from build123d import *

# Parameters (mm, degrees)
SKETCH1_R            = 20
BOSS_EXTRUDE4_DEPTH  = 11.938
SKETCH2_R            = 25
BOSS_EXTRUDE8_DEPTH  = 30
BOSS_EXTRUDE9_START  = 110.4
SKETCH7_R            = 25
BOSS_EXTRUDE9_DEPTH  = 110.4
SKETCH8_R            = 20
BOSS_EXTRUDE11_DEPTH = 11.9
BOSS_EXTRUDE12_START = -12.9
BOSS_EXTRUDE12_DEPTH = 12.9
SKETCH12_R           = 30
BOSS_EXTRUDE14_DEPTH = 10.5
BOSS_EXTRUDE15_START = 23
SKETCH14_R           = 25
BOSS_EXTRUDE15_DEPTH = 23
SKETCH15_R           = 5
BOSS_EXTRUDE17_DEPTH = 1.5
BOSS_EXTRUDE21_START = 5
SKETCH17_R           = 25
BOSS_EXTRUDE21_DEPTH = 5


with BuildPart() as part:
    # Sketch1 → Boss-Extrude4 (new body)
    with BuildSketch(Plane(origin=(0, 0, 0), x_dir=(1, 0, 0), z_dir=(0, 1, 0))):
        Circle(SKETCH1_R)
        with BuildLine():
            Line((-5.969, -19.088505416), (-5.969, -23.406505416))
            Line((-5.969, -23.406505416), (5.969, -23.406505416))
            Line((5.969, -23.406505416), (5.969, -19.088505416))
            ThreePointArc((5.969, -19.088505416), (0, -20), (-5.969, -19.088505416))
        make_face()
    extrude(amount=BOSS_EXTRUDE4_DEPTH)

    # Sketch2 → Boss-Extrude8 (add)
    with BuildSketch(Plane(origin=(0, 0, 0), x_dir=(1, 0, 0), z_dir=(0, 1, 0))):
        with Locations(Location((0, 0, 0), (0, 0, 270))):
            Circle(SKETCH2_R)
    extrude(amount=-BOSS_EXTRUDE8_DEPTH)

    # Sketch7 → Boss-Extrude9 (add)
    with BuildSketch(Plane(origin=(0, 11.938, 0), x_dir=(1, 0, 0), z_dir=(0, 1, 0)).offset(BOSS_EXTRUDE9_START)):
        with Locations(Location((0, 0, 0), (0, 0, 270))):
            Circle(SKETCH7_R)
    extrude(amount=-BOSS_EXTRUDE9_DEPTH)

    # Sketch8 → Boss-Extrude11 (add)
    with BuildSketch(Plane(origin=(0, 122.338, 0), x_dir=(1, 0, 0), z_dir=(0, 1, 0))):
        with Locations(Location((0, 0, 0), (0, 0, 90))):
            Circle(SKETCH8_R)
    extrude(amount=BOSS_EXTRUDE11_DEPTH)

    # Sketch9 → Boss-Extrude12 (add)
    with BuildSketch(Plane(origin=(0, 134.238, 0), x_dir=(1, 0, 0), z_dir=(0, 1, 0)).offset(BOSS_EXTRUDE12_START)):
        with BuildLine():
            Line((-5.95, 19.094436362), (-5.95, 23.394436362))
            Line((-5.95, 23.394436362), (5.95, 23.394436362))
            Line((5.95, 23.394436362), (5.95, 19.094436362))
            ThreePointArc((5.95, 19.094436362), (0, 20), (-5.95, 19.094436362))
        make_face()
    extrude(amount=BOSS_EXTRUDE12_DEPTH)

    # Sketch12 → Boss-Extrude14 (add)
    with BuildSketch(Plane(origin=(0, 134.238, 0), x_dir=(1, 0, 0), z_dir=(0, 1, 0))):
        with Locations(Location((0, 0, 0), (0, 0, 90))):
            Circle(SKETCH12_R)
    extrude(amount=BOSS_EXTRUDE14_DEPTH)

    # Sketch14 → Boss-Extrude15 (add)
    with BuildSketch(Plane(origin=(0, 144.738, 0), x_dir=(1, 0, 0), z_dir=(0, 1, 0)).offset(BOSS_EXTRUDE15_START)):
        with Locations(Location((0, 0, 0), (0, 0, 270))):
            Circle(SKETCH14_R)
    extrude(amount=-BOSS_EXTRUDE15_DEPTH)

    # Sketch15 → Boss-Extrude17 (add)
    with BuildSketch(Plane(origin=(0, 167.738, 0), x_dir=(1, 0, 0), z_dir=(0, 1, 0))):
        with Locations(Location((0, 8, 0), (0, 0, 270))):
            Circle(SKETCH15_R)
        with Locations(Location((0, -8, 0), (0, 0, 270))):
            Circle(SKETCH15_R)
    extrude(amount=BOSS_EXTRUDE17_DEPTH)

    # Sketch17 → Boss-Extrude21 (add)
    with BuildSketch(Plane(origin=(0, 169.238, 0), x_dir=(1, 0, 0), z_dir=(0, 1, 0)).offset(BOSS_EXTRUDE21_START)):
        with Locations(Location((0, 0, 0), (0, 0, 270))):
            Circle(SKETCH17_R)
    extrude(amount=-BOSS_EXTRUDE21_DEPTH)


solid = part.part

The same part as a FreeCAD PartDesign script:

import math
import FreeCAD as App
import Part
import Sketcher

doc = App.newDocument("Part")
params = doc.addObject("Spreadsheet::Sheet", "Params")
for row, (alias, value) in enumerate([
    ("sketch1_radius", "20 mm"),
    ("pad1_length", "11.938 mm"),
    ("sketch2_diameter", "50 mm"),
    ("pad2_length", "30 mm"),
    ("sketch3_diameter", "50 mm"),
    ("pad3_length", "110.4 mm"),
    ("sketch4_diameter", "40 mm"),
    ("pad4_length", "11.9 mm"),
    ("sketch5_radius", "20 mm"),
    ("sketch5_width", "11.9 mm"),
    ("sketch5_height", "4.3 mm"),
    ("pad5_length", "12.9 mm"),
    ("sketch6_diameter", "60 mm"),
    ("pad6_length", "10.5 mm"),
    ("sketch7_diameter", "50 mm"),
    ("pad7_length", "23 mm"),
    ("sketch8_diameter", "10 mm"),
    ("pad8_length", "1.5 mm"),
    ("sketch9_diameter", "50 mm"),
    ("pad9_length", "5 mm"),
], start=1):
    params.set(f"A{row}", alias)
    params.set(f"B{row}", "=" + value)
    params.setAlias(f"B{row}", alias)

body = doc.addObject("PartDesign::Body", "Body")

# Sketch on XZ plane
sketch1 = doc.addObject("Sketcher::SketchObject", "Sketch")
body.addObject(sketch1)
sketch1.AttachmentSupport = (doc.XZ_Plane, [""])
sketch1.MapMode = "FlatFace"
sketch1.addGeometry([
    Part.LineSegment(App.Vector(-6, 19.1, 0), App.Vector(-6, 23.4, 0)),
    Part.LineSegment(App.Vector(-6, 23.4, 0), App.Vector(6, 23.4, 0)),
    Part.LineSegment(App.Vector(6, 23.4, 0), App.Vector(6, 19.1, 0)),
    Part.ArcOfCircle(Part.Circle(App.Vector(0, 0, 0), App.Vector(0, 0, 1), 20), math.radians(107), math.radians(433)),
], False)
sketch1.addConstraint([
    Sketcher.Constraint("Coincident", 0, 2, 1, 1),
    Sketcher.Constraint("Coincident", 1, 2, 2, 1),
    Sketcher.Constraint("Coincident", 2, 2, 3, 2),
    Sketcher.Constraint("Coincident", 3, 1, 0, 1),
    Sketcher.Constraint("Vertical", 0),
    Sketcher.Constraint("Horizontal", 1),
    Sketcher.Constraint("Vertical", 2),
    Sketcher.Constraint("Coincident", 3, 3, -1, 1),
    Sketcher.Constraint("Horizontal", 2, 2, 3, 1),
    Sketcher.Constraint("Radius", 3, 20.0),
    Sketcher.Constraint("DistanceX", 1, 1, 1, 2, 11.938),
    Sketcher.Constraint("DistanceY", 0, 1, 0, 2, 4.318),
])
sketch1.setExpression("Constraints[9]", "Params.sketch1_radius")
pad1 = doc.addObject("PartDesign::Pad", "Pad")
body.addObject(pad1)
pad1.Profile = sketch1
pad1.setExpression("Length", "Params.pad1_length")
pad1.Reversed = True

# Sketch on XZ plane
sketch2 = doc.addObject("Sketcher::SketchObject", "Sketch001")
body.addObject(sketch2)
sketch2.AttachmentSupport = (doc.XZ_Plane, [""])
sketch2.MapMode = "FlatFace"
sketch2.addGeometry(Part.Circle(App.Vector(0, 0, 0), App.Vector(0, 0, 1), 25), False)
sketch2.addConstraint([
    Sketcher.Constraint("Coincident", 0, 3, -1, 1),
    Sketcher.Constraint("Diameter", 0, 50.0),
])
sketch2.setExpression("Constraints[1]", "Params.sketch2_diameter")
pad2 = doc.addObject("PartDesign::Pad", "Pad001")
body.addObject(pad2)
pad2.Profile = sketch2
pad2.setExpression("Length", "Params.pad2_length")

# Sketch on XZ plane
sketch3 = doc.addObject("Sketcher::SketchObject", "Sketch002")
body.addObject(sketch3)
sketch3.AttachmentSupport = (doc.XZ_Plane, [""])
sketch3.MapMode = "FlatFace"
sketch3.AttachmentOffset = App.Placement(App.Vector(0, 0, -122.338), App.Rotation())
sketch3.addGeometry(Part.Circle(App.Vector(0, 0, 0), App.Vector(0, 0, 1), 25), False)
sketch3.addConstraint([
    Sketcher.Constraint("Coincident", 0, 3, -1, 1),
    Sketcher.Constraint("Diameter", 0, 50.0),
])
sketch3.setExpression("Constraints[1]", "Params.sketch3_diameter")
pad3 = doc.addObject("PartDesign::Pad", "Pad002")
body.addObject(pad3)
pad3.Profile = sketch3
pad3.setExpression("Length", "Params.pad3_length")

# Sketch on XZ plane
sketch4 = doc.addObject("Sketcher::SketchObject", "Sketch003")
body.addObject(sketch4)
sketch4.AttachmentSupport = (doc.XZ_Plane, [""])
sketch4.MapMode = "FlatFace"
sketch4.AttachmentOffset = App.Placement(App.Vector(0, 0, -122.338), App.Rotation())
sketch4.addGeometry(Part.Circle(App.Vector(0, 0, 0), App.Vector(0, 0, 1), 20), False)
sketch4.addConstraint([
    Sketcher.Constraint("Coincident", 0, 3, -1, 1),
    Sketcher.Constraint("Diameter", 0, 40.0),
])
sketch4.setExpression("Constraints[1]", "Params.sketch4_diameter")
pad4 = doc.addObject("PartDesign::Pad", "Pad003")
body.addObject(pad4)
pad4.Profile = sketch4
pad4.setExpression("Length", "Params.pad4_length")
pad4.Reversed = True

# Sketch on XZ plane
sketch5 = doc.addObject("Sketcher::SketchObject", "Sketch004")
body.addObject(sketch5)
sketch5.AttachmentSupport = (doc.XZ_Plane, [""])
sketch5.MapMode = "FlatFace"
sketch5.AttachmentOffset = App.Placement(App.Vector(0, 0, -121.338), App.Rotation())
sketch5.addGeometry([
    Part.LineSegment(App.Vector(-6, -23.4, 0), App.Vector(-6, -19.1, 0)),
    Part.ArcOfCircle(Part.Circle(App.Vector(0, 0, 0), App.Vector(0, 0, 1), 20), math.radians(-107), math.radians(-73)),
    Part.LineSegment(App.Vector(6, -19.1, 0), App.Vector(6, -23.4, 0)),
    Part.LineSegment(App.Vector(6, -23.4, 0), App.Vector(-6, -23.4, 0)),
], False)
sketch5.addConstraint([
    Sketcher.Constraint("Coincident", 0, 2, 1, 1),
    Sketcher.Constraint("Coincident", 1, 2, 2, 1),
    Sketcher.Constraint("Coincident", 2, 2, 3, 1),
    Sketcher.Constraint("Coincident", 3, 2, 0, 1),
    Sketcher.Constraint("Vertical", 0),
    Sketcher.Constraint("Vertical", 2),
    Sketcher.Constraint("Horizontal", 3),
    Sketcher.Constraint("Coincident", 1, 3, -1, 1),
    Sketcher.Constraint("Horizontal", 0, 2, 1, 2),
    Sketcher.Constraint("Radius", 1, 20.0),
    Sketcher.Constraint("DistanceX", 3, 2, 3, 1, 11.9),
    Sketcher.Constraint("DistanceY", 0, 1, 0, 2, 4.3),
])
sketch5.setExpression("Constraints[9]", "Params.sketch5_radius")
sketch5.setExpression("Constraints[10]", "Params.sketch5_width")
sketch5.setExpression("Constraints[11]", "Params.sketch5_height")
pad5 = doc.addObject("PartDesign::Pad", "Pad004")
body.addObject(pad5)
pad5.Profile = sketch5
pad5.setExpression("Length", "Params.pad5_length")
pad5.Reversed = True

# Sketch on XZ plane
sketch6 = doc.addObject("Sketcher::SketchObject", "Sketch005")
body.addObject(sketch6)
sketch6.AttachmentSupport = (doc.XZ_Plane, [""])
sketch6.MapMode = "FlatFace"
sketch6.AttachmentOffset = App.Placement(App.Vector(0, 0, -134.238), App.Rotation())
sketch6.addGeometry(Part.Circle(App.Vector(0, 0, 0), App.Vector(0, 0, 1), 30), False)
sketch6.addConstraint([
    Sketcher.Constraint("Coincident", 0, 3, -1, 1),
    Sketcher.Constraint("Diameter", 0, 60.0),
])
sketch6.setExpression("Constraints[1]", "Params.sketch6_diameter")
pad6 = doc.addObject("PartDesign::Pad", "Pad005")
body.addObject(pad6)
pad6.Profile = sketch6
pad6.setExpression("Length", "Params.pad6_length")
pad6.Reversed = True

# Sketch on XZ plane
sketch7 = doc.addObject("Sketcher::SketchObject", "Sketch006")
body.addObject(sketch7)
sketch7.AttachmentSupport = (doc.XZ_Plane, [""])
sketch7.MapMode = "FlatFace"
sketch7.AttachmentOffset = App.Placement(App.Vector(0, 0, -167.738), App.Rotation())
sketch7.addGeometry(Part.Circle(App.Vector(0, 0, 0), App.Vector(0, 0, 1), 25), False)
sketch7.addConstraint([
    Sketcher.Constraint("Coincident", 0, 3, -1, 1),
    Sketcher.Constraint("Diameter", 0, 50.0),
])
sketch7.setExpression("Constraints[1]", "Params.sketch7_diameter")
pad7 = doc.addObject("PartDesign::Pad", "Pad006")
body.addObject(pad7)
pad7.Profile = sketch7
pad7.setExpression("Length", "Params.pad7_length")

# Sketch on XZ plane
sketch8 = doc.addObject("Sketcher::SketchObject", "Sketch007")
body.addObject(sketch8)
sketch8.AttachmentSupport = (doc.XZ_Plane, [""])
sketch8.MapMode = "FlatFace"
sketch8.AttachmentOffset = App.Placement(App.Vector(0, 0, -167.738), App.Rotation())
sketch8.addGeometry([
    Part.Circle(App.Vector(0, -8, 0), App.Vector(0, 0, 1), 5),
    Part.Circle(App.Vector(0, 8, 0), App.Vector(0, 0, 1), 5),
], False)
sketch8.addConstraint([
    Sketcher.Constraint("Equal", 0, 1),
    Sketcher.Constraint("Symmetric", 0, 3, 1, 3, -1, 1),
    Sketcher.Constraint("PointOnObject", 0, 3, -2),
    Sketcher.Constraint("Diameter", 0, 10.0),
    Sketcher.Constraint("DistanceY", 0, 3, -1, 1, 8.0),
])
sketch8.setExpression("Constraints[3]", "Params.sketch8_diameter")
pad8 = doc.addObject("PartDesign::Pad", "Pad007")
body.addObject(pad8)
pad8.Profile = sketch8
pad8.setExpression("Length", "Params.pad8_length")
pad8.Reversed = True

# Sketch on XZ plane
sketch9 = doc.addObject("Sketcher::SketchObject", "Sketch008")
body.addObject(sketch9)
sketch9.AttachmentSupport = (doc.XZ_Plane, [""])
sketch9.MapMode = "FlatFace"
sketch9.AttachmentOffset = App.Placement(App.Vector(0, 0, -174.238), App.Rotation())
sketch9.addGeometry(Part.Circle(App.Vector(0, 0, 0), App.Vector(0, 0, 1), 25), False)
sketch9.addConstraint([
    Sketcher.Constraint("Coincident", 0, 3, -1, 1),
    Sketcher.Constraint("Diameter", 0, 50.0),
])
sketch9.setExpression("Constraints[1]", "Params.sketch9_diameter")
pad9 = doc.addObject("PartDesign::Pad", "Pad008")
body.addObject(pad9)
pad9.Profile = sketch9
pad9.setExpression("Length", "Params.pad9_length")

doc.recompute()
